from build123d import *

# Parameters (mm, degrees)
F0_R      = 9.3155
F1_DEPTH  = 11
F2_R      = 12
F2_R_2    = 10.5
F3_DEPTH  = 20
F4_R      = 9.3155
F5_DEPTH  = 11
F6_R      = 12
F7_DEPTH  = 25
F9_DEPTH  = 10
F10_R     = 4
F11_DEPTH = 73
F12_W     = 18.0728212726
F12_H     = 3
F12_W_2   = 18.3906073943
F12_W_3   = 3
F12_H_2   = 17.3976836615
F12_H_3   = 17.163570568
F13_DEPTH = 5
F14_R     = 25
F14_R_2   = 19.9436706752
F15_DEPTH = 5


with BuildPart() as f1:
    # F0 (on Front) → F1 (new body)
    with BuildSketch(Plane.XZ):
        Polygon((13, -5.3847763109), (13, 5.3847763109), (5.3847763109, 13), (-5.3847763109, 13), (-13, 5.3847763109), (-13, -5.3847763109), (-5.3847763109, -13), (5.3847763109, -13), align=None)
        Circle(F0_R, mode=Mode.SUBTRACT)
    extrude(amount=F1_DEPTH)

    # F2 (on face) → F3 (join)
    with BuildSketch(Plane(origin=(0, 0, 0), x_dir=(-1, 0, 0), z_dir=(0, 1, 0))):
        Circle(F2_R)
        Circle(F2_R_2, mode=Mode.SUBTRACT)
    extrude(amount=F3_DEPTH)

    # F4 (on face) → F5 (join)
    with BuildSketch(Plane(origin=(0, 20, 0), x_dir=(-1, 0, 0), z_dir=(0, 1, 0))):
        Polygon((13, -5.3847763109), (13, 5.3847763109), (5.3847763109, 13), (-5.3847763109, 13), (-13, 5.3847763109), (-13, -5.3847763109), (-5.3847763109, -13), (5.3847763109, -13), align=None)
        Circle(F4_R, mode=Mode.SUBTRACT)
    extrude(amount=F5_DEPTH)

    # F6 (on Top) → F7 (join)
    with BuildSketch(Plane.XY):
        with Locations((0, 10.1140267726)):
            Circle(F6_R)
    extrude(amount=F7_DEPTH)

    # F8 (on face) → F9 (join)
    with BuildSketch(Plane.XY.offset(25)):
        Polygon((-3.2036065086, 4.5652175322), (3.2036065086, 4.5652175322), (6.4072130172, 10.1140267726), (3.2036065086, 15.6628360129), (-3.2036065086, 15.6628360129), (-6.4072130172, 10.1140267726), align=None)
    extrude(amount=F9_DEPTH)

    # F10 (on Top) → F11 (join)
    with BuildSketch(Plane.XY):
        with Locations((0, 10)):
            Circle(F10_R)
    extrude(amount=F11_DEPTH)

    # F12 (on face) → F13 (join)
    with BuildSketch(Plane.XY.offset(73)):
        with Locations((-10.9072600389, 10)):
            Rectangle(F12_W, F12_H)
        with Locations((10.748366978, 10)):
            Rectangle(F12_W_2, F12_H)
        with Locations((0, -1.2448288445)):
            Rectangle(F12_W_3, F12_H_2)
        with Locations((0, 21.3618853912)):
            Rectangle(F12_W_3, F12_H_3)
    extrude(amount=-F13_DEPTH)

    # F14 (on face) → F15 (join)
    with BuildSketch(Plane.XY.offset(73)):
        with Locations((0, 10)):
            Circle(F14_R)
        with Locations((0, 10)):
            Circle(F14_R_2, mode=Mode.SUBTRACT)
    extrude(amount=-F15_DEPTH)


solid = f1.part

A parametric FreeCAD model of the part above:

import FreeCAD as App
import Part
import Sketcher
Q = App.Units.Quantity

doc = App.newDocument("Part")
body = doc.addObject("PartDesign::Body", "Body")

sketch1 = body.newObject("Sketcher::SketchObject", "Sketch")
sketch1.AttachmentSupport = (doc.getObject("XZ_Plane"), [""])
sketch1.MapMode = "FlatFace"
sketch1.addGeometry([
    Part.LineSegment(App.Vector(13, -5, 0), App.Vector(13, 5, 0)),
    Part.LineSegment(App.Vector(13, 5, 0), App.Vector(5, 13, 0)),
    Part.LineSegment(App.Vector(5, 13, 0), App.Vector(-5, 13, 0)),
    Part.LineSegment(App.Vector(-5, 13, 0), App.Vector(-13, 5, 0)),
    Part.LineSegment(App.Vector(-13, 5, 0), App.Vector(-13, -5, 0)),
    Part.LineSegment(App.Vector(-13, -5, 0), App.Vector(-5, -13, 0)),
    Part.LineSegment(App.Vector(-5, -13, 0), App.Vector(5, -13, 0)),
    Part.LineSegment(App.Vector(5, -13, 0), App.Vector(13, -5, 0)),
    Part.Circle(App.Vector(0, 0, 0), App.Vector(0, 0, 1), 9),
], False)
sketch1.addConstraint([
    Sketcher.Constraint("Coincident", 0, 2, 1, 1),
    Sketcher.Constraint("Coincident", 1, 2, 2, 1),
    Sketcher.Constraint("Coincident", 2, 2, 3, 1),
    Sketcher.Constraint("Coincident", 3, 2, 4, 1),
    Sketcher.Constraint("Coincident", 4, 2, 5, 1),
    Sketcher.Constraint("Coincident", 5, 2, 6, 1),
    Sketcher.Constraint("Coincident", 6, 2, 7, 1),
    Sketcher.Constraint("Coincident", 7, 2, 0, 1),
    Sketcher.Constraint("Vertical", 0),
    Sketcher.Constraint("Horizontal", 2),
    Sketcher.Constraint("Vertical", 4),
    Sketcher.Constraint("Horizontal", 6),
    Sketcher.Constraint("Coincident", 8, 3, -1, 1),
    Sketcher.Constraint("Symmetric", 0, 2, 4, 2, -1, 1),
    Sketcher.Constraint("Symmetric", 1, 2, 5, 2, -1, 1),
    Sketcher.Constraint("Perpendicular", 1, 3),
    Sketcher.Constraint("Perpendicular", 5, 7),
    Sketcher.Constraint("Horizontal", 0, 2, 3, 2),
    Sketcher.Constraint("Horizontal", 4, 2, 7, 2),
    Sketcher.Constraint("Vertical", 2, 2, 5, 2),
    Sketcher.Constraint("Equal", 6, 0),
    Sketcher.Constraint("Diameter", 8, 18.631),
    Sketcher.Constraint("DistanceX", -1, 1, 0, 2, 13.0),
    Sketcher.Constraint("DistanceX", 2, 2, 2, 1, 10.769553),
])
pad1 = body.newObject("PartDesign::Pad", "Pad")
pad1.Profile = sketch1
pad1.Length = 11

sketch2 = body.newObject("Sketcher::SketchObject", "Sketch001")
sketch2.AttachmentSupport = (doc.getObject("XZ_Plane"), [""])
sketch2.MapMode = "FlatFace"
sketch2.addGeometry([
    Part.Circle(App.Vector(0, 0, 0), App.Vector(0, 0, 1), 12),
    Part.Circle(App.Vector(0, 0, 0), App.Vector(0, 0, 1), 10),
], False)
sketch2.addConstraint([
    Sketcher.Constraint("Coincident", 0, 3, -1, 1),
    Sketcher.Constraint("Coincident", 1, 3, -1, 1),
    Sketcher.Constraint("Diameter", 0, 24.0),
    Sketcher.Constraint("Diameter", 1, 21.0),
])
pad2 = body.newObject("PartDesign::Pad", "Pad001")
pad2.Profile = sketch2
pad2.Length = 20
pad2.Reversed = True

sketch3 = body.newObject("Sketcher::SketchObject", "Sketch002")
sketch3.AttachmentSupport = (doc.getObject("XZ_Plane"), [""])
sketch3.MapMode = "FlatFace"
sketch3.AttachmentOffset = App.Placement(App.Vector(0, 0, -20), App.Rotation())
sketch3.addGeometry([
    Part.LineSegment(App.Vector(-13, -5, 0), App.Vector(-13, 5, 0)),
    Part.LineSegment(App.Vector(-13, 5, 0), App.Vector(-5, 13, 0)),
    Part.LineSegment(App.Vector(-5, 13, 0), App.Vector(5, 13, 0)),
    Part.LineSegment(App.Vector(5, 13, 0), App.Vector(13, 5, 0)),
    Part.LineSegment(App.Vector(13, 5, 0), App.Vector(13, -5, 0)),
    Part.LineSegment(App.Vector(13, -5, 0), App.Vector(5, -13, 0)),
    Part.LineSegment(App.Vector(5, -13, 0), App.Vector(-5, -13, 0)),
    Part.LineSegment(App.Vector(-5, -13, 0), App.Vector(-13, -5, 0)),
    Part.Circle(App.Vector(0, 0, 0), App.Vector(0, 0, 1), 9),
], False)
sketch3.addConstraint([
    Sketcher.Constraint("Coincident", 0, 2, 1, 1),
    Sketcher.Constraint("Coincident", 1, 2, 2, 1),
    Sketcher.Constraint("Coincident", 2, 2, 3, 1),
    Sketcher.Constraint("Coincident", 3, 2, 4, 1),
    Sketcher.Constraint("Coincident", 4, 2, 5, 1),
    Sketcher.Constraint("Coincident", 5, 2, 6, 1),
    Sketcher.Constraint("Coincident", 6, 2, 7, 1),
    Sketcher.Constraint("Coincident", 7, 2, 0, 1),
    Sketcher.Constraint("Vertical", 0),
    Sketcher.Constraint("Horizontal", 2),
    Sketcher.Constraint("Vertical", 4),
    Sketcher.Constraint("Horizontal", 6),
    Sketcher.Constraint("Coincident", 8, 3, -1, 1),
    Sketcher.Constraint("Symmetric", 0, 2, 4, 2, -1, 1),
    Sketcher.Constraint("Symmetric", 1, 2, 5, 2, -1, 1),
    Sketcher.Constraint("Perpendicular", 1, 3),
    Sketcher.Constraint("Perpendicular", 5, 7),
    Sketcher.Constraint("Horizontal", 0, 2, 3, 2),
    Sketcher.Constraint("Horizontal", 4, 2, 7, 2),
    Sketcher.Constraint("Vertical", 2, 2, 5, 2),
    Sketcher.Constraint("Equal", 6, 0),
    Sketcher.Constraint("Diameter", 8, 18.631),
    Sketcher.Constraint("DistanceX", 0, 2, -1, 1, 13.0),
    Sketcher.Constraint("DistanceX", 2, 1, 2, 2, 10.769553),
])
pad3 = body.newObject("PartDesign::Pad", "Pad002")
pad3.Profile = sketch3
pad3.Length = 11
pad3.Reversed = True

sketch4 = body.newObject("Sketcher::SketchObject", "Sketch003")
sketch4.AttachmentSupport = (doc.getObject("XY_Plane"), [""])
sketch4.MapMode = "FlatFace"
sketch4.addGeometry(Part.Circle(App.Vector(0, 10, 0), App.Vector(0, 0, 1), 12), False)
sketch4.addConstraint([
    Sketcher.Constraint("PointOnObject", 0, 3, -2),
    Sketcher.Constraint("Diameter", 0, 24.0),
    Sketcher.Constraint("DistanceY", -1, 1, 0, 3, 10.114027),
])
pad4 = body.newObject("PartDesign::Pad", "Pad003")
pad4.Profile = sketch4
pad4.Length = 25

sketch5 = body.newObject("Sketcher::SketchObject", "Sketch004")
sketch5.AttachmentSupport = (doc.getObject("XY_Plane"), [""])
sketch5.MapMode = "FlatFace"
sketch5.AttachmentOffset = App.Placement(App.Vector(0, 0, 25), App.Rotation())
sketch5.addGeometry([
    Part.LineSegment(App.Vector(-3, 5, 0), App.Vector(3, 5, 0)),
    Part.LineSegment(App.Vector(3, 5, 0), App.Vector(6, 10, 0)),
    Part.LineSegment(App.Vector(6, 10, 0), App.Vector(3, 16, 0)),
    Part.LineSegment(App.Vector(3, 16, 0), App.Vector(-3, 16, 0)),
    Part.LineSegment(App.Vector(-3, 16, 0), App.Vector(-6, 10, 0)),
    Part.LineSegment(App.Vector(-6, 10, 0), App.Vector(-3, 5, 0)),
], False)
sketch5.addConstraint([
    Sketcher.Constraint("Coincident", 0, 2, 1, 1),
    Sketcher.Constraint("Coincident", 1, 2, 2, 1),
    Sketcher.Constraint("Coincident", 2, 2, 3, 1),
    Sketcher.Constraint("Coincident", 3, 2, 4, 1),
    Sketcher.Constraint("Coincident", 4, 2, 5, 1),
    Sketcher.Constraint("Coincident", 5, 2, 0, 1),
    Sketcher.Constraint("Horizontal", 0),
    Sketcher.Constraint("Horizontal", 3),
    Sketcher.Constraint("Symmetric", 1, 2, 4, 2, -2),
    Sketcher.Constraint("Parallel", 1, 4),
    Sketcher.Constraint("Parallel", 2, 5),
    Sketcher.Constraint("Vertical", 0, 2, 2, 2),
    Sketcher.Constraint("Vertical", 3, 2, 5, 2),
    Sketcher.Constraint("Angle", 1, Q("60 deg")),
    Sketcher.Constraint("DistanceX", 0, 1, 0, 2, 6.407213),
    Sketcher.Constraint("DistanceY", 0, 2, 1, 2, 5.548809),
    Sketcher.Constraint("DistanceY", -1, 1, 0, 2, 4.565218),
])
pad5 = body.newObject("PartDesign::Pad", "Pad004")
pad5.Profile = sketch5
pad5.Length = 10

sketch6 = body.newObject("Sketcher::SketchObject", "Sketch005")
sketch6.AttachmentSupport = (doc.getObject("XY_Plane"), [""])
sketch6.MapMode = "FlatFace"
sketch6.addGeometry(Part.Circle(App.Vector(0, 10, 0), App.Vector(0, 0, 1), 4), False)
sketch6.addConstraint([
    Sketcher.Constraint("PointOnObject", 0, 3, -2),
    Sketcher.Constraint("Diameter", 0, 8.0),
    Sketcher.Constraint("DistanceY", -1, 1, 0, 3, 10.0),
])
pad6 = body.newObject("PartDesign::Pad", "Pad005")
pad6.Profile = sketch6
pad6.Length = 73

sketch7 = body.newObject("Sketcher::SketchObject", "Sketch006")
sketch7.AttachmentSupport = (doc.getObject("XY_Plane"), [""])
sketch7.MapMode = "FlatFace"
sketch7.AttachmentOffset = App.Placement(App.Vector(0, 0, 73), App.Rotation())
sketch7.addGeometry([
    Part.LineSegment(App.Vector(-19.9, 11.5, 0), App.Vector(-19.9, 8.5, 0)),
    Part.LineSegment(App.Vector(-19.9, 8.5, 0), App.Vector(-1.9, 8.5, 0)),
    Part.LineSegment(App.Vector(-1.9, 8.5, 0), App.Vector(-1.9, 11.5, 0)),
    Part.LineSegment(App.Vector(-1.9, 11.5, 0), App.Vector(-19.9, 11.5, 0)),
    Part.LineSegment(App.Vector(1.6, 11.5, 0), App.Vector(1.6, 8.5, 0)),
    Part.LineSegment(App.Vector(1.6, 8.5, 0), App.Vector(19.9, 8.5, 0)),
    Part.LineSegment(App.Vector(19.9, 8.5, 0), App.Vector(19.9, 11.5, 0)),
    Part.LineSegment(App.Vector(19.9, 11.5, 0), App.Vector(1.6, 11.5, 0)),
    Part.LineSegment(App.Vector(-1.5, 7.5, 0), App.Vector(-1.5, -9.9, 0)),
    Part.LineSegment(App.Vector(-1.5, -9.9, 0), App.Vector(1.5, -9.9, 0)),
    Part.LineSegment(App.Vector(1.5, -9.9, 0), App.Vector(1.5, 7.5, 0)),
    Part.LineSegment(App.Vector(1.5, 7.5, 0), App.Vector(-1.5, 7.5, 0)),
    Part.LineSegment(App.Vector(-1.5, 29.9, 0), App.Vector(-1.5, 12.8, 0)),
    Part.LineSegment(App.Vector(-1.5, 12.8, 0), App.Vector(1.5, 12.8, 0)),
    Part.LineSegment(App.Vector(1.5, 12.8, 0), App.Vector(1.5, 29.9, 0)),
    Part.LineSegment(App.Vector(1.5, 29.9, 0), App.Vector(-1.5, 29.9, 0)),
], False)
sketch7.addConstraint([
    Sketcher.Constraint("Coincident", 0, 2, 1, 1),
    Sketcher.Constraint("Coincident", 1, 2, 2, 1),
    Sketcher.Constraint("Coincident", 2, 2, 3, 1),
    Sketcher.Constraint("Coincident", 3, 2, 0, 1),
    Sketcher.Constraint("Coincident", 4, 2, 5, 1),
    Sketcher.Constraint("Coincident", 5, 2, 6, 1),
    Sketcher.Constraint("Coincident", 6, 2, 7, 1),
    Sketcher.Constraint("Coincident", 7, 2, 4, 1),
    Sketcher.Constraint("Coincident", 8, 2, 9, 1),
    Sketcher.Constraint("Coincident", 9, 2, 10, 1),
    Sketcher.Constraint("Coincident", 10, 2, 11, 1),
    Sketcher.Constraint("Coincident", 11, 2, 8, 1),
    Sketcher.Constraint("Coincident", 12, 2, 13, 1),
    Sketcher.Constraint("Coincident", 13, 2, 14, 1),
    Sketcher.Constraint("Coincident", 14, 2, 15, 1),
    Sketcher.Constraint("Coincident", 15, 2, 12, 1),
    Sketcher.Constraint("Vertical", 0),
    Sketcher.Constraint("Horizontal", 1),
    Sketcher.Constraint("Vertical", 2),
    Sketcher.Constraint("Horizontal", 3),
    Sketcher.Constraint("Vertical", 4),
    Sketcher.Constraint("Horizontal", 5),
    Sketcher.Constraint("Vertical", 6),
    Sketcher.Constraint("Horizontal", 7),
    Sketcher.Constraint("Vertical", 8),
    Sketcher.Constraint("Horizontal", 9),
    Sketcher.Constraint("Vertical", 10),
    Sketcher.Constraint("Horizontal", 11),
    Sketcher.Constraint("Vertical", 12),
    Sketcher.Constraint("Horizontal", 13),
    Sketcher.Constraint("Vertical", 14),
    Sketcher.Constraint("Horizontal", 15),
    Sketcher.Constraint("Symmetric", 0, 2, 5, 2, -2),
    Sketcher.Constraint("Horizontal", 3, 2, 6, 2),
    Sketcher.Constraint("Vertical", 11, 2, 12, 2),
    Sketcher.Constraint("Vertical", 10, 2, 13, 2),
    Sketcher.Constraint("Equal", 15, 0),
    Sketcher.Constraint("DistanceX", 9, 1, 9, 2, 3.0),
    Sketcher.Constraint("DistanceY", -1, 1, 0, 2, 8.5),
    Sketcher.Constraint("DistanceX", 8, 2, -1, 1, 1.5),
    Sketcher.Constraint("DistanceX", 1, 1, 1, 2, 18.072821),
    Sketcher.Constraint("DistanceY", 12, 2, 12, 1, 17.163571),
    Sketcher.Constraint("DistanceY", -1, 1, 12, 2, 12.7801),
    Sketcher.Constraint("DistanceX", 5, 1, 5, 2, 18.390607),
    Sketcher.Constraint("DistanceY", 8, 2, 8, 1, 17.397684),
    Sketcher.Constraint("DistanceX", 0, 2, -1, 1, 19.943671),
    Sketcher.Constraint("DistanceY", 8, 2, -1, 1, 9.943671),
])
pad7 = body.newObject("PartDesign::Pad", "Pad006")
pad7.Profile = sketch7
pad7.Length = 5
pad7.Reversed = True

sketch8 = body.newObject("Sketcher::SketchObject", "Sketch007")
sketch8.AttachmentSupport = (doc.getObject("XY_Plane"), [""])
sketch8.MapMode = "FlatFace"
sketch8.AttachmentOffset = App.Placement(App.Vector(0, 0, 73), App.Rotation())
sketch8.addGeometry([
    Part.Circle(App.Vector(0, 10, 0), App.Vector(0, 0, 1), 25),
    Part.Circle(App.Vector(0, 10, 0), App.Vector(0, 0, 1), 20),
], False)
sketch8.addConstraint([
    Sketcher.Constraint("Coincident", 1, 3, 0, 3),
    Sketcher.Constraint("PointOnObject", 0, 3, -2),
    Sketcher.Constraint("Diameter", 0, 50.0),
    Sketcher.Constraint("DistanceY", -1, 1, 0, 3, 10.0),
    Sketcher.Constraint("Diameter", 1, 39.887341),
])
pad8 = body.newObject("PartDesign::Pad", "Pad007")
pad8.Profile = sketch8
pad8.Length = 5
pad8.Reversed = True

doc.recompute()
